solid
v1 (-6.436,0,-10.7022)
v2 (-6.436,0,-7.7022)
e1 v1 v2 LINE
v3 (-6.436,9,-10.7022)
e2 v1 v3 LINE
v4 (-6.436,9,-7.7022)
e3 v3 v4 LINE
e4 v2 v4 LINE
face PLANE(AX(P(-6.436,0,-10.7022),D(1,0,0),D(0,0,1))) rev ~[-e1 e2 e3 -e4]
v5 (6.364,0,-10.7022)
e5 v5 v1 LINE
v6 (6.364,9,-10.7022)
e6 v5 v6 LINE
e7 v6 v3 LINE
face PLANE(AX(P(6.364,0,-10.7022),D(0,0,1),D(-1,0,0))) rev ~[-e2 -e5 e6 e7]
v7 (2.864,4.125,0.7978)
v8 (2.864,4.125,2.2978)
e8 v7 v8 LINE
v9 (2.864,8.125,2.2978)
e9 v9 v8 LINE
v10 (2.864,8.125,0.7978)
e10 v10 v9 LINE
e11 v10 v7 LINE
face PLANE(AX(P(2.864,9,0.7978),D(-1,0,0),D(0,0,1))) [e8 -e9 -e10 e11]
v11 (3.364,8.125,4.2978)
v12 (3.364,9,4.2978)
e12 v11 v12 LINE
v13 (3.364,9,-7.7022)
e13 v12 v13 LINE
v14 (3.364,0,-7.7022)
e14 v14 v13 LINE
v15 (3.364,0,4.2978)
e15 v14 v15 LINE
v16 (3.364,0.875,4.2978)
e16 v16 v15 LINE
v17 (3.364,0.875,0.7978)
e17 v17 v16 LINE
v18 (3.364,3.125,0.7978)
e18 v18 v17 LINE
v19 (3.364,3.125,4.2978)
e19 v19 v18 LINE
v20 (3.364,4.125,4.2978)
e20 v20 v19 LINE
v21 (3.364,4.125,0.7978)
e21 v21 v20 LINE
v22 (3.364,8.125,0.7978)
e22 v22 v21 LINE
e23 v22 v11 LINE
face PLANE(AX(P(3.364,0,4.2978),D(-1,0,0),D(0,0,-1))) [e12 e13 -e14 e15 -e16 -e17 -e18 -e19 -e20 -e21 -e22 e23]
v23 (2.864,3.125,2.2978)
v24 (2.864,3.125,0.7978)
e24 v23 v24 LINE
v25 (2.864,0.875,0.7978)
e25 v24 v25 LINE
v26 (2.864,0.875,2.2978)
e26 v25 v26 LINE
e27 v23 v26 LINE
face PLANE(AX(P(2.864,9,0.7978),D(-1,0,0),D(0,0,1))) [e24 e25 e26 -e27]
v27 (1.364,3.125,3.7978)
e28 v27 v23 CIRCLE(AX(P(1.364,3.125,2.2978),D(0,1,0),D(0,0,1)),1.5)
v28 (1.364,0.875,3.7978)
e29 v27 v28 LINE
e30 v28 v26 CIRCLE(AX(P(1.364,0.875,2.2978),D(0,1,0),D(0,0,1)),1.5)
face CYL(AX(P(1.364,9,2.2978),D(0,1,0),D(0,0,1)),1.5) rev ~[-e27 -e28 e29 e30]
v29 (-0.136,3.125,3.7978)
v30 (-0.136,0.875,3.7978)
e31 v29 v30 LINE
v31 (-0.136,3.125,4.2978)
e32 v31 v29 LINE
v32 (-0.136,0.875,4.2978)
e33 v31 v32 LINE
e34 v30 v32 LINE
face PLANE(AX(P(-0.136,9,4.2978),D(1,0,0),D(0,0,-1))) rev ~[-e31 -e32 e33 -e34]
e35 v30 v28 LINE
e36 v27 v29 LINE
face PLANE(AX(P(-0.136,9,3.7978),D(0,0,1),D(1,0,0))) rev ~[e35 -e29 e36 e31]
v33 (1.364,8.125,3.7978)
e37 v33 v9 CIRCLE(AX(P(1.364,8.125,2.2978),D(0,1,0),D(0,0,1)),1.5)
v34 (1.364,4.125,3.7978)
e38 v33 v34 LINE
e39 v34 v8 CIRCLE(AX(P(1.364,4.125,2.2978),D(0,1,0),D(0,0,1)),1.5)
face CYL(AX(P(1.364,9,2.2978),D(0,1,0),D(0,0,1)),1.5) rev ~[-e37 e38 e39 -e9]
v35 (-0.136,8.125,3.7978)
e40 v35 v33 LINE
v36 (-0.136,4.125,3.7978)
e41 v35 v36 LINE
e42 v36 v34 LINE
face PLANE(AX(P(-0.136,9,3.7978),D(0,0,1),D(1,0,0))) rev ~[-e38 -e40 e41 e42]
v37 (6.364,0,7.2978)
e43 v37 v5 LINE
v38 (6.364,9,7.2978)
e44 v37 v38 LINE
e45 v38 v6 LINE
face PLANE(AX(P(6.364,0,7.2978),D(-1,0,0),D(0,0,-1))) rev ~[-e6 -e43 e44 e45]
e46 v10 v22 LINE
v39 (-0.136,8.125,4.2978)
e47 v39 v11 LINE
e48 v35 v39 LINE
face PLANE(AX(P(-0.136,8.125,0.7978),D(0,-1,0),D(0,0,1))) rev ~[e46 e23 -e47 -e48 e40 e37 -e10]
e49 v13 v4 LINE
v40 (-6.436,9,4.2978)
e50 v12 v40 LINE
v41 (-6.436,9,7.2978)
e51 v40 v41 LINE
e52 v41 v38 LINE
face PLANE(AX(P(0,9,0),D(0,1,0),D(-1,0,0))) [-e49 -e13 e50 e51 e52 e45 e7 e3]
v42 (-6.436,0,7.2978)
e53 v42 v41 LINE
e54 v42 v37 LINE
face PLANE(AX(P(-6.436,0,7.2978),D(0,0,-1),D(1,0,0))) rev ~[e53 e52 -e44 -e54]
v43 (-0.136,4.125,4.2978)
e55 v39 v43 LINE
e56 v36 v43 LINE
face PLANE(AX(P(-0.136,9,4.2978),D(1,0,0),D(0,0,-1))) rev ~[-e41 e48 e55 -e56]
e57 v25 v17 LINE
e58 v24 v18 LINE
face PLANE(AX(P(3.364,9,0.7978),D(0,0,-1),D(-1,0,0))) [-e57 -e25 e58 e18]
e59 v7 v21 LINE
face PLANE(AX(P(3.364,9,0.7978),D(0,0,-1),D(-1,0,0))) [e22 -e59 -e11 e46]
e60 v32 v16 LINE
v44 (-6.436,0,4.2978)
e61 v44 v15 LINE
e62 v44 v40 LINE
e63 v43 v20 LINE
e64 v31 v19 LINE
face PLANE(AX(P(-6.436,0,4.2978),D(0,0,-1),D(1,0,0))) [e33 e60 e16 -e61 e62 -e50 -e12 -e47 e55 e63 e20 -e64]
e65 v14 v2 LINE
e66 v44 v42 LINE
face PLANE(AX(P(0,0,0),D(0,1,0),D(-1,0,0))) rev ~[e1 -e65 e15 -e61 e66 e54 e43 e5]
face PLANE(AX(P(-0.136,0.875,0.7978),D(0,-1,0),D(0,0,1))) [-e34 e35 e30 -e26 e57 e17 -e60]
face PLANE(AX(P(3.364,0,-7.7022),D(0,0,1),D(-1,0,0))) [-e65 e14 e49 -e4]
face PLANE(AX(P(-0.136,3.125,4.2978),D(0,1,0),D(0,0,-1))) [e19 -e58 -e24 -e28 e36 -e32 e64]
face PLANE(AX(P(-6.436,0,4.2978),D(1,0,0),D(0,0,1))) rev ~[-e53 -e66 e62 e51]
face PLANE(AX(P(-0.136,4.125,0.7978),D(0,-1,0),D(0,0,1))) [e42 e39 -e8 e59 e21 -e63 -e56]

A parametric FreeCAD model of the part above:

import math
import FreeCAD as App
import Part
import Sketcher

V = App.Vector


def add_polygon(sketch, points):
    """Adds a closed chain of lines whose ends are joined by coincident constraints."""
    first, n = sketch.GeometryCount, len(points)
    for a, b in zip(points, points[1:] + points[:1]):
        sketch.addGeometry(Part.LineSegment(App.Vector(*a, 0), App.Vector(*b, 0)), False)
    for i in range(n):
        sketch.addConstraint(Sketcher.Constraint("Coincident", first + i, 2, first + (i + 1) % n, 1))

doc = App.newDocument("Part")
body = doc.addObject("PartDesign::Body", "Body")

# Sketch on XZ plane
sketch1 = body.newObject("Sketcher::SketchObject", "Sketch")
sketch1.AttachmentSupport = (doc.getObject("XZ_Plane"), [""])
sketch1.MapMode = "FlatFace"
add_polygon(sketch1, [(-6.4, -7.7), (3.4, -7.7), (3.4, 4.3), (-6.4, 4.3), (-6.4, 7.3), (6.4, 7.3), (6.4, -10.7), (-6.4, -10.7)])  # lines 0-7
sketch1.addConstraint([
    Sketcher.Constraint("Horizontal", 0),
    Sketcher.Constraint("Vertical", 1),
    Sketcher.Constraint("Horizontal", 2),
    Sketcher.Constraint("Vertical", 3),
    Sketcher.Constraint("Horizontal", 4),
    Sketcher.Constraint("Vertical", 5),
    Sketcher.Constraint("Horizontal", 6),
    Sketcher.Constraint("Vertical", 7),
    Sketcher.Constraint("Vertical", 3, 2, 6, 2),
    Sketcher.Constraint("Equal", 3, 7),
    Sketcher.Constraint("DistanceY", 1, 1, 1, 2, 12.0),
    Sketcher.Constraint("DistanceY", 3, 1, 3, 2, 3.0),
    Sketcher.Constraint("DistanceX", 0, 1, 0, 2, 9.8),
    Sketcher.Constraint("DistanceX", 1, 2, 4, 2, 3.0),
    Sketcher.Constraint("DistanceX", -1, 1, 0, 2, 3.364),
    Sketcher.Constraint("DistanceY", 0, 2, -1, 1, 7.7022),
])
pad1 = body.newObject("PartDesign::Pad", "Pad")
pad1.Profile = sketch1
pad1.Length = 9
pad1.Reversed = True

# Sketch on XZ plane
sketch2 = body.newObject("Sketcher::SketchObject", "Sketch001")
sketch2.AttachmentSupport = (doc.getObject("XZ_Plane"), [""])
sketch2.MapMode = "FlatFace"
sketch2.AttachmentOffset = App.Placement(V(0, 0, -9), App.Rotation())
sketch2.addGeometry([
    Part.LineSegment(V(3.36, 4.3, 0), V(3.36, 0.8, 0)),  # 0
    Part.LineSegment(V(3.36, 0.8, 0), V(2.86, 0.8, 0)),  # 1
    Part.LineSegment(V(2.86, 0.8, 0), V(2.86, 2.3, 0)),  # 2
    Part.ArcOfCircle(Part.Circle(V(1.36, 2.3, 0), V(0, 0, 1), 1.5), math.radians(0), math.radians(90)),  # 3
    Part.LineSegment(V(1.36, 3.8, 0), V(-0.14, 3.8, 0)),  # 4
    Part.LineSegment(V(-0.14, 3.8, 0), V(-0.14, 4.3, 0)),  # 5
    Part.LineSegment(V(-0.14, 4.3, 0), V(3.36, 4.3, 0)),  # 6
], False)
sketch2.addConstraint([
    Sketcher.Constraint("Coincident", 0, 2, 1, 1),
    Sketcher.Constraint("Coincident", 1, 2, 2, 1),
    Sketcher.Constraint("Tangent", 2, 2, 3, 1),
    Sketcher.Constraint("Tangent", 3, 2, 4, 1),
    Sketcher.Constraint("Coincident", 4, 2, 5, 1),
    Sketcher.Constraint("Coincident", 5, 2, 6, 1),
    Sketcher.Constraint("Coincident", 6, 2, 0, 1),
    Sketcher.Constraint("Vertical", 0),
    Sketcher.Constraint("Horizontal", 1),
    Sketcher.Constraint("Vertical", 2),
    Sketcher.Constraint("Horizontal", 4),
    Sketcher.Constraint("Vertical", 5),
    Sketcher.Constraint("Horizontal", 6),
    Sketcher.Constraint("Equal", 6, 0),
    Sketcher.Constraint("Equal", 4, 2),
    Sketcher.Constraint("Radius", 3, 1.5),
    Sketcher.Constraint("DistanceX", 1, 2, 1, 1, 0.5),
    Sketcher.Constraint("DistanceX", 4, 2, 4, 1, 1.5),
    Sketcher.Constraint("DistanceX", -1, 1, 3, 3, 1.364),
    Sketcher.Constraint("DistanceY", -1, 1, 3, 3, 2.2978),
])
pad2 = body.newObject("PartDesign::Pad", "Pad001")
pad2.Profile = sketch2
pad2.Length = 9

# Sketch on YZ plane
sketch3 = body.newObject("Sketcher::SketchObject", "Sketch002")
sketch3.AttachmentSupport = (doc.getObject("YZ_Plane"), [""])
sketch3.MapMode = "FlatFace"
sketch3.AttachmentOffset = App.Placement(V(0, 0, -0.136), App.Rotation())
add_polygon(sketch3, [(8.1, 4.3), (9, 4.3), (9, 0.8), (8.1, 0.8)])  # lines 0-3
add_polygon(sketch3, [(3.1, 4.3), (4.1, 4.3), (4.1, 0.8), (3.1, 0.8)])  # lines 4-7
add_polygon(sketch3, [(0, 4.3), (0.9, 4.3), (0.9, 0.8), (0, 0.8)])  # lines 8-11
sketch3.addConstraint([
    Sketcher.Constraint("Horizontal", 0),
    Sketcher.Constraint("Vertical", 1),
    Sketcher.Constraint("Horizontal", 2),
    Sketcher.Constraint("Vertical", 3),
    Sketcher.Constraint("Horizontal", 4),
    Sketcher.Constraint("Vertical", 5),
    Sketcher.Constraint("Horizontal", 6),
    Sketcher.Constraint("Vertical", 7),
    Sketcher.Constraint("Horizontal", 8),
    Sketcher.Constraint("Vertical", 9),
    Sketcher.Constraint("Horizontal", 10),
    Sketcher.Constraint("Vertical", 11),
    Sketcher.Constraint("PointOnObject", 10, 2, -2),
    Sketcher.Constraint("Horizontal", 3, 2, 4, 2),
    Sketcher.Constraint("Horizontal", 2, 2, 5, 2),
    Sketcher.Constraint("Horizontal", 7, 2, 8, 2),
    Sketcher.Constraint("Horizontal", 6, 2, 9, 2),
    Sketcher.Constraint("Equal", 2, 8),
    Sketcher.Constraint("DistanceX", 4, 1, 4, 2, 1.0),
    Sketcher.Constraint("DistanceX", 4, 2, 3, 2, 4.0),
    Sketcher.Constraint("DistanceX", 0, 1, 0, 2, 0.875),
    Sketcher.Constraint("DistanceY", 1, 2, 1, 1, 3.5),
    Sketcher.Constraint("DistanceX", -1, 1, 0, 2, 9.0),
    Sketcher.Constraint("DistanceY", -1, 1, 0, 2, 4.2978),
])
pocket1 = body.newObject("PartDesign::Pocket", "Pocket")
pocket1.Profile = sketch3
pocket1.Length = 3.5
pocket1.Reversed = True

doc.recompute()
